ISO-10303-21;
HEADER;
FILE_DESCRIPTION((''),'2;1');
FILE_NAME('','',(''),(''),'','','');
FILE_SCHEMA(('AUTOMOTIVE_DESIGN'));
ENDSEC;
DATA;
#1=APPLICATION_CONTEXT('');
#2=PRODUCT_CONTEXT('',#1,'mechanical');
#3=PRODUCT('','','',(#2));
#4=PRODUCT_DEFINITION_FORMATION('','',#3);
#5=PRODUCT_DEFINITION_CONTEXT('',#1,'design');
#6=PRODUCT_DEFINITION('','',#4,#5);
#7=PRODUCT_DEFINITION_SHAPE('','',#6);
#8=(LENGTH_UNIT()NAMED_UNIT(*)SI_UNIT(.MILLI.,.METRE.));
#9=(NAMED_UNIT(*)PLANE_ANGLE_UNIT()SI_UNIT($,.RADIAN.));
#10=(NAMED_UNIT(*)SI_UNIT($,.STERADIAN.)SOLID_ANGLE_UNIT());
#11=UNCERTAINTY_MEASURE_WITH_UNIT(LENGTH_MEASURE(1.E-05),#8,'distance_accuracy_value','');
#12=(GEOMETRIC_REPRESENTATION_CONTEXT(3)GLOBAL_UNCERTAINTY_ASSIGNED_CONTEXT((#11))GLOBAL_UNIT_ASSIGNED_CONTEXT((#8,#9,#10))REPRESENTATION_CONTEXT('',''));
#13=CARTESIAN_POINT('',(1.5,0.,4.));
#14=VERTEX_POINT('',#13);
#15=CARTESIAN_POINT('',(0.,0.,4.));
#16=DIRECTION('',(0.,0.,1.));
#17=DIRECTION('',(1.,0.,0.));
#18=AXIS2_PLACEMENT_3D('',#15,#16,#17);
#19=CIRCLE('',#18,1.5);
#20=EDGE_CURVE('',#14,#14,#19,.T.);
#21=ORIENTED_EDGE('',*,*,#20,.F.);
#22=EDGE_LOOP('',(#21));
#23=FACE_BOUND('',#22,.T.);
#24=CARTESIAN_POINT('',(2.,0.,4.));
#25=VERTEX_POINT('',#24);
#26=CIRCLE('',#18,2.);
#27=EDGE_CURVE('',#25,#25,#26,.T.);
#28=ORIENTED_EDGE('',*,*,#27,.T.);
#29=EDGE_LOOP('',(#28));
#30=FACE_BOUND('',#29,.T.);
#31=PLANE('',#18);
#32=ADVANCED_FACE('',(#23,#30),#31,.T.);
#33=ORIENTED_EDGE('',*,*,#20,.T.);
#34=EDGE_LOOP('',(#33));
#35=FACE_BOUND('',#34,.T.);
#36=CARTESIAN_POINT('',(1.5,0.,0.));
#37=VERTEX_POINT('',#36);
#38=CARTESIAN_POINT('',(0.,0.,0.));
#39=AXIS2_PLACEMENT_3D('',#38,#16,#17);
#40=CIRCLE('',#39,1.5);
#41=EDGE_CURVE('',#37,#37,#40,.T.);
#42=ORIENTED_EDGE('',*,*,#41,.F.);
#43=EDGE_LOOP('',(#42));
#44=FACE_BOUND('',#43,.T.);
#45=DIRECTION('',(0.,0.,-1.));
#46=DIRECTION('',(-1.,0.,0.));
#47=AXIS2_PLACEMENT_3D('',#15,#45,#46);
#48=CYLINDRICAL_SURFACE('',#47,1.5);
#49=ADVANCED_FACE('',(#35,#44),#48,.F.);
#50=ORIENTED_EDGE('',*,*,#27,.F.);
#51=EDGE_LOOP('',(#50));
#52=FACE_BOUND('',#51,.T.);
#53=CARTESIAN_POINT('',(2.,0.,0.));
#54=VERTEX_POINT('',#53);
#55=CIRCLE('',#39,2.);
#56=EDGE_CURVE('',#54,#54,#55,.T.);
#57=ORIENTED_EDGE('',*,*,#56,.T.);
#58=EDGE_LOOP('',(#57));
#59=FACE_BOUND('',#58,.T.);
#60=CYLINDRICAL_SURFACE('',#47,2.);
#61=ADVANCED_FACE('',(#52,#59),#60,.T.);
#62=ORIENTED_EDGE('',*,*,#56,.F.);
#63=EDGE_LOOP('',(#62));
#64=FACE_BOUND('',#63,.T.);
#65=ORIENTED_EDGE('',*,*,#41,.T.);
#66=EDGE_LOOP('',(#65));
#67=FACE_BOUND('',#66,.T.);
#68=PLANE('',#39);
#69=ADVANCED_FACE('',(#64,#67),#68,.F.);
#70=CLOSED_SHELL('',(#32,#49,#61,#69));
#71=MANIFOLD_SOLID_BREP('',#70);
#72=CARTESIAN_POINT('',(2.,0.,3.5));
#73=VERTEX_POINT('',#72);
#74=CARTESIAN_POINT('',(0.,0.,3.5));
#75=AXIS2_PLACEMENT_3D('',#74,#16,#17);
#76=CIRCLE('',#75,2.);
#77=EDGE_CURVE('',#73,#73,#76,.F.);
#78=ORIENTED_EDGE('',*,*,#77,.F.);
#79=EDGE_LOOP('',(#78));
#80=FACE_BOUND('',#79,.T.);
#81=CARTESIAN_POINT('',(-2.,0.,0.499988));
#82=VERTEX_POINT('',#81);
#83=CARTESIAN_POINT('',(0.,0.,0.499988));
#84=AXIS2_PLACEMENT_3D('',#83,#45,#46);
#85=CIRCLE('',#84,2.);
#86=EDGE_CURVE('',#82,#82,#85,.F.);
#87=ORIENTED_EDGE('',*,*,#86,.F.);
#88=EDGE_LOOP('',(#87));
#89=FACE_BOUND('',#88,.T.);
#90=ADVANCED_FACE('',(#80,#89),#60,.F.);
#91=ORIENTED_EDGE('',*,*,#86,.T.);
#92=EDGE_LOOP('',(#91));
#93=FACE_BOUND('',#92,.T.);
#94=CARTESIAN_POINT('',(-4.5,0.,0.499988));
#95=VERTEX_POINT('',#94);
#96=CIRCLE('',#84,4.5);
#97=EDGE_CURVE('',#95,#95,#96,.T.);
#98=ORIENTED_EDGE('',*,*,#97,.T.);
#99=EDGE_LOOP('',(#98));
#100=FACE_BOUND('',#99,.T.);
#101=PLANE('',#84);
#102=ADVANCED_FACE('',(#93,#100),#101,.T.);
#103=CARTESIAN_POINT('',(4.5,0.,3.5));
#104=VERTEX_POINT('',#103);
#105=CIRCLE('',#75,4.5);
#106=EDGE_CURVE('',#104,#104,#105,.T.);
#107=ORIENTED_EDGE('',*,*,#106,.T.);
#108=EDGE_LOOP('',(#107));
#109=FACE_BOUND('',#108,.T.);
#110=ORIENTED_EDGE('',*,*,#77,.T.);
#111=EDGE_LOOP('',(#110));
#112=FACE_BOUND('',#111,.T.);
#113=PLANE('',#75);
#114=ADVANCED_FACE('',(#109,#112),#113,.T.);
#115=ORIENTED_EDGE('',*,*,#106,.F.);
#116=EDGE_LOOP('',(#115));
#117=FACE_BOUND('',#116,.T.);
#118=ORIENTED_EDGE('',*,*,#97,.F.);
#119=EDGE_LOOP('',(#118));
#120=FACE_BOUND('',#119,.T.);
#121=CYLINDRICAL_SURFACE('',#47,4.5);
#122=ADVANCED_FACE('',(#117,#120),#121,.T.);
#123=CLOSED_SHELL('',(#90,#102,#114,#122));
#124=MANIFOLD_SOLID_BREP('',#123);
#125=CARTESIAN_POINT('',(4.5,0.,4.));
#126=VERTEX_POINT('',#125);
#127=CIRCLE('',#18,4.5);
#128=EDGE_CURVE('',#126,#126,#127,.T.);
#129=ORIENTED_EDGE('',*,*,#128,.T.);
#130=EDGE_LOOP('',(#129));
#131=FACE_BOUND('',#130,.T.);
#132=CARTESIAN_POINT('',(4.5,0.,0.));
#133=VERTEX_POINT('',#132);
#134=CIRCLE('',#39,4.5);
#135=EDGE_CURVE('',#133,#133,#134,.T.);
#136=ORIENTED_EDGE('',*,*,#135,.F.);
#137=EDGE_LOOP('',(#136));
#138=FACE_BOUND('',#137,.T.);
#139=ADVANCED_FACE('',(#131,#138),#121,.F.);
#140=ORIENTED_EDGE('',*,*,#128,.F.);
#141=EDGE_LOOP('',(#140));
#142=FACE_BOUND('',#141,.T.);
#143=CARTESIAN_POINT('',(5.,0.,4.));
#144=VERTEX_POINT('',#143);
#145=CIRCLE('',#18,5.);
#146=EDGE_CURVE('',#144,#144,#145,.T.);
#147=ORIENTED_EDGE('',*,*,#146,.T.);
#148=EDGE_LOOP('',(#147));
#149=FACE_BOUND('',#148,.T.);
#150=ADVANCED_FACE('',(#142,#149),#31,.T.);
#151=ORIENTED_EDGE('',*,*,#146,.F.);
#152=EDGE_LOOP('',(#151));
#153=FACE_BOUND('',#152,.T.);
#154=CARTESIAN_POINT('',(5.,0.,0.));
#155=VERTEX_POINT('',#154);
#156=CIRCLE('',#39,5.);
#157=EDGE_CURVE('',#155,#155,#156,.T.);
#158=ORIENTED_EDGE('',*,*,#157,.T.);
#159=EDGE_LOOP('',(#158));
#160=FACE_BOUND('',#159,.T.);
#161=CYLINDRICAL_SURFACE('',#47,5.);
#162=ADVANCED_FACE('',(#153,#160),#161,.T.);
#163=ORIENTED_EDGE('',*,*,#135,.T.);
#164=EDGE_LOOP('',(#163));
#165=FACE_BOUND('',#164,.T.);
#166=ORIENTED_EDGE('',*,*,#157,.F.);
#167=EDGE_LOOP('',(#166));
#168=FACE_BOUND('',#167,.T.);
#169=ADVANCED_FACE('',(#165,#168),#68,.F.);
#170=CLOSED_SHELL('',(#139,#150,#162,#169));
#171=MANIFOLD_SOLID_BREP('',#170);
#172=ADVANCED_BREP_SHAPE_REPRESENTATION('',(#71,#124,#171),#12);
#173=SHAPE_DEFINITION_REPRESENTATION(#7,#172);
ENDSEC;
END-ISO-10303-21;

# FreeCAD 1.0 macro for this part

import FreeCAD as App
import Part
import Sketcher

V = App.Vector

doc = App.newDocument("Part")
params = doc.addObject("Spreadsheet::Sheet", "Params")
for row, (alias, value) in enumerate([
    ("sketch1_diameter", "10 mm"),
    ("sketch1_diameter2", "9 mm"),
    ("pad1_length", "4 mm"),
    ("sketch2_diameter", "4 mm"),
    ("sketch2_diameter2", "3 mm"),
    ("pad2_length", "4 mm"),
    ("sketch3_diameter", "9 mm"),
    ("sketch3_diameter2", "4 mm"),
    ("pad3_length", "4.000012 mm"),
    ("sketch4_diameter", "9 mm"),
    ("sketch4_diameter2", "4 mm"),
    ("pocket1_length", "0.5 mm"),
    ("sketch5_diameter", "9 mm"),
    ("sketch5_diameter2", "4 mm"),
    ("pocket2_length", "0.5 mm"),
], start=1):
    params.set(f"A{row}", alias)
    params.set(f"B{row}", "=" + value)
    params.setAlias(f"B{row}", alias)

body = doc.addObject("PartDesign::Body", "Body")

sketch1 = doc.addObject("Sketcher::SketchObject", "Sketch")
body.addObject(sketch1)
sketch1.AttachmentSupport = (doc.XY_Plane, [""])
sketch1.MapMode = "FlatFace"
sketch1.addGeometry([
    Part.Circle(V(0, 0, 0), V(0, 0, 1), 5),
    Part.Circle(V(0, 0, 0), V(0, 0, 1), 4.5),
], False)
sketch1.addConstraint([
    Sketcher.Constraint("Coincident", 0, 3, -1, 1),
    Sketcher.Constraint("Coincident", 1, 3, -1, 1),
    Sketcher.Constraint("Diameter", 0, 10.0),
    Sketcher.Constraint("Diameter", 1, 9.0),
])
sketch1.setExpression("Constraints[2]", "Params.sketch1_diameter")
sketch1.setExpression("Constraints[3]", "Params.sketch1_diameter2")
pad1 = doc.addObject("PartDesign::Pad", "Pad")
body.addObject(pad1)
pad1.Profile = sketch1
pad1.setExpression("Length", "Params.pad1_length")
body2 = doc.addObject("PartDesign::Body", "Body001")

sketch2 = doc.addObject("Sketcher::SketchObject", "Sketch001")
body2.addObject(sketch2)
sketch2.AttachmentSupport = (doc.getObject("XY_Plane001"), [""])
sketch2.MapMode = "FlatFace"
sketch2.addGeometry([
    Part.Circle(V(0, 0, 0), V(0, 0, 1), 2),
    Part.Circle(V(0, 0, 0), V(0, 0, 1), 1.5),
], False)
sketch2.addConstraint([
    Sketcher.Constraint("Coincident", 0, 3, -1, 1),
    Sketcher.Constraint("Coincident", 1, 3, -1, 1),
    Sketcher.Constraint("Diameter", 0, 4.0),
    Sketcher.Constraint("Diameter", 1, 3.0),
])
sketch2.setExpression("Constraints[2]", "Params.sketch2_diameter")
sketch2.setExpression("Constraints[3]", "Params.sketch2_diameter2")
pad2 = doc.addObject("PartDesign::Pad", "Pad001")
body2.addObject(pad2)
pad2.Profile = sketch2
pad2.setExpression("Length", "Params.pad2_length")
body3 = doc.addObject("PartDesign::Body", "Body002")

sketch3 = doc.addObject("Sketcher::SketchObject", "Sketch002")
body3.addObject(sketch3)
sketch3.AttachmentSupport = (doc.getObject("XY_Plane002"), [""])
sketch3.MapMode = "FlatFace"
sketch3.AttachmentOffset = App.Placement(V(0, 0, -0.000012), App.Rotation())
sketch3.addGeometry([
    Part.Circle(V(0, 0, 0), V(0, 0, 1), 4.5),
    Part.Circle(V(0, 0, 0), V(0, 0, 1), 2),
], False)
sketch3.addConstraint([
    Sketcher.Constraint("Coincident", 0, 3, -1, 1),
    Sketcher.Constraint("Coincident", 1, 3, -1, 1),
    Sketcher.Constraint("Diameter", 0, 9.0),
    Sketcher.Constraint("Diameter", 1, 4.0),
])
sketch3.setExpression("Constraints[2]", "Params.sketch3_diameter")
sketch3.setExpression("Constraints[3]", "Params.sketch3_diameter2")
pad3 = doc.addObject("PartDesign::Pad", "Pad002")
body3.addObject(pad3)
pad3.Profile = sketch3
pad3.setExpression("Length", "Params.pad3_length")

sketch4 = doc.addObject("Sketcher::SketchObject", "Sketch003")
body3.addObject(sketch4)
sketch4.AttachmentSupport = (doc.getObject("XY_Plane002"), [""])
sketch4.MapMode = "FlatFace"
sketch4.AttachmentOffset = App.Placement(V(0, 0, -0.000012), App.Rotation())
sketch4.addGeometry([
    Part.Circle(V(0, 0, 0), V(0, 0, 1), 4.5),
    Part.Circle(V(0, 0, 0), V(0, 0, 1), 2),
], False)
sketch4.addConstraint([
    Sketcher.Constraint("Coincident", 0, 3, -1, 1),
    Sketcher.Constraint("Coincident", 1, 3, -1, 1),
    Sketcher.Constraint("Diameter", 0, 9.0),
    Sketcher.Constraint("Diameter", 1, 4.0),
])
sketch4.setExpression("Constraints[2]", "Params.sketch4_diameter")
sketch4.setExpression("Constraints[3]", "Params.sketch4_diameter2")
pocket1 = doc.addObject("PartDesign::Pocket", "Pocket")
body3.addObject(pocket1)
pocket1.Profile = sketch4
pocket1.setExpression("Length", "Params.pocket1_length")
pocket1.Reversed = True

sketch5 = doc.addObject("Sketcher::SketchObject", "Sketch004")
body3.addObject(sketch5)
sketch5.AttachmentSupport = (doc.getObject("XY_Plane002"), [""])
sketch5.MapMode = "FlatFace"
sketch5.AttachmentOffset = App.Placement(V(0, 0, 3.5), App.Rotation())
sketch5.addGeometry([
    Part.Circle(V(0, 0, 0), V(0, 0, 1), 4.5),
    Part.Circle(V(0, 0, 0), V(0, 0, 1), 2),
], False)
sketch5.addConstraint([
    Sketcher.Constraint("Coincident", 0, 3, -1, 1),
    Sketcher.Constraint("Coincident", 1, 3, -1, 1),
    Sketcher.Constraint("Diameter", 0, 9.0),
    Sketcher.Constraint("Diameter", 1, 4.0),
])
sketch5.setExpression("Constraints[2]", "Params.sketch5_diameter")
sketch5.setExpression("Constraints[3]", "Params.sketch5_diameter2")
pocket2 = doc.addObject("PartDesign::Pocket", "Pocket001")
body3.addObject(pocket2)
pocket2.Profile = sketch5
pocket2.setExpression("Length", "Params.pocket2_length")
pocket2.Reversed = True

doc.recompute()
